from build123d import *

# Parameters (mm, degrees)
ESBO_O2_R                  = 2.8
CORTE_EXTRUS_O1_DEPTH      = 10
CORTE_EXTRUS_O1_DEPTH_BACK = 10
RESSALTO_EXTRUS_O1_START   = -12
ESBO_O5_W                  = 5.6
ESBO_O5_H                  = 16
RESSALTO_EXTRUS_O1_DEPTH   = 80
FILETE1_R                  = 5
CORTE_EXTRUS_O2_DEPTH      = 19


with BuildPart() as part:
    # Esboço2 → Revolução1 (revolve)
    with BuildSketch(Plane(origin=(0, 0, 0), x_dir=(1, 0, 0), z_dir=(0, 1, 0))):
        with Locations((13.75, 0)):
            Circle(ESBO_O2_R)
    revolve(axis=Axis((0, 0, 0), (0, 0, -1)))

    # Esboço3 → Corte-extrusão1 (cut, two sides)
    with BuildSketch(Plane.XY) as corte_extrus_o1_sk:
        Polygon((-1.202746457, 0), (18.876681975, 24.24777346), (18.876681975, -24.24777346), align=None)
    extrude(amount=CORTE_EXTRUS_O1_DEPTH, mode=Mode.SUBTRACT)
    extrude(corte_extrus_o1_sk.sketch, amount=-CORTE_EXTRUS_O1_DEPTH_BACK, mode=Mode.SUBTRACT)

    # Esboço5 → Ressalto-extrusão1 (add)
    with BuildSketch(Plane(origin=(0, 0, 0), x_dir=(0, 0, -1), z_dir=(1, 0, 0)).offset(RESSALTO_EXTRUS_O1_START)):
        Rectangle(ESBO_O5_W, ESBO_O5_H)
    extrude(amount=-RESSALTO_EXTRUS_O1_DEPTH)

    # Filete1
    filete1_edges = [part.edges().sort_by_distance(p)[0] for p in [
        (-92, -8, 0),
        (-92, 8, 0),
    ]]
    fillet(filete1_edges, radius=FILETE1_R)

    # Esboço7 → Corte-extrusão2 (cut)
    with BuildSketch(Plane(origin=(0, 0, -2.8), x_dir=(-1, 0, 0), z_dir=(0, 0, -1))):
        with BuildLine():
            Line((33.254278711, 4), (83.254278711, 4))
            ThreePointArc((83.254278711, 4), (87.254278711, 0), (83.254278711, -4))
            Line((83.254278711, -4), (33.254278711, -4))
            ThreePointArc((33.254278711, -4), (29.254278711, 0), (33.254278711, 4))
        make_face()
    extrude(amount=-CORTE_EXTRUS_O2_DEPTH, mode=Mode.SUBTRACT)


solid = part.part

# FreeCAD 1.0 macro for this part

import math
import FreeCAD as App
import Part
import Sketcher


def edges_at(feature, points):
    """Names of the edges that pass closest to the given points."""
    edges = feature.Shape.Edges
    near = lambda p: min(range(len(edges)), key=lambda i: edges[i].distToShape(Part.Vertex(*p))[0])
    return sorted({f"Edge{near(p) + 1}" for p in points})


def add_polygon(sketch, points):
    """Adds a closed chain of lines whose ends are joined by coincident constraints."""
    first, n = sketch.GeometryCount, len(points)
    for a, b in zip(points, points[1:] + points[:1]):
        sketch.addGeometry(Part.LineSegment(App.Vector(*a, 0), App.Vector(*b, 0)), False)
    for i in range(n):
        sketch.addConstraint(Sketcher.Constraint("Coincident", first + i, 2, first + (i + 1) % n, 1))

doc = App.newDocument("Part")
params = doc.addObject("Spreadsheet::Sheet", "Params")
for row, (alias, value) in enumerate([
    ("sketch1_diameter", "5.6 mm"),
    ("revolution_angle", "360 deg"),
    ("sketch3_width", "16 mm"),
    ("sketch3_height", "5.6 mm"),
    ("pad1_length", "80 mm"),
    ("fillet_radius", "5 mm"),
    ("sketch4_radius", "4 mm"),
    ("sketch4_width", "50 mm"),
    ("pocket2_length", "19 mm"),
], start=1):
    params.set(f"A{row}", alias)
    params.set(f"B{row}", "=" + value)
    params.setAlias(f"B{row}", alias)

body = doc.addObject("PartDesign::Body", "Body")

sketch1 = body.newObject("Sketcher::SketchObject", "Sketch")
sketch1.AttachmentSupport = (doc.getObject("XZ_Plane"), [""])
sketch1.MapMode = "FlatFace"
sketch1.addGeometry(Part.Circle(App.Vector(13.8, 0, 0), App.Vector(0, 0, 1), 2.8), False)
sketch1.addConstraint([
    Sketcher.Constraint("PointOnObject", 0, 3, -1),
    Sketcher.Constraint("Diameter", 0, 5.6),
    Sketcher.Constraint("DistanceX", -1, 1, 0, 3, 13.75),
])
sketch1.setExpression("Constraints[1]", "Params.sketch1_diameter")
revolution = body.newObject("PartDesign::Revolution", "Revolution")
revolution.Profile = sketch1
revolution.ReferenceAxis = (sketch1, ["V_Axis"])
revolution.setExpression("Angle", "Params.revolution_angle")

sketch2 = body.newObject("Sketcher::SketchObject", "Sketch001")
sketch2.AttachmentSupport = (doc.getObject("XY_Plane"), [""])
sketch2.MapMode = "FlatFace"
add_polygon(sketch2, [(19, 24), (-1, 0), (19, -24)])
sketch2.addConstraint([
    Sketcher.Constraint("Vertical", 2),
    Sketcher.Constraint("PointOnObject", 0, 2, -1),
    Sketcher.Constraint("Equal", 0, 1),
    Sketcher.Constraint("DistanceY", 2, 1, 2, 2, 48.495547),
    Sketcher.Constraint("DistanceX", -1, 1, 1, 2, 18.876682),
    Sketcher.Constraint("DistanceX", 0, 2, 1, 2, 20.079428),
])
pocket1 = body.newObject("PartDesign::Pocket", "Pocket")
pocket1.Profile = sketch2
pocket1.Type = "ThroughAll"
pocket1.Midplane = True

sketch3 = body.newObject("Sketcher::SketchObject", "Sketch002")
sketch3.AttachmentSupport = (doc.getObject("YZ_Plane"), [""])
sketch3.MapMode = "FlatFace"
sketch3.AttachmentOffset = App.Placement(App.Vector(0, 0, -12), App.Rotation())
add_polygon(sketch3, [(8, 3), (-8, 3), (-8, -3), (8, -3)])
sketch3.addConstraint([
    Sketcher.Constraint("Horizontal", 0),
    Sketcher.Constraint("Vertical", 1),
    Sketcher.Constraint("Horizontal", 2),
    Sketcher.Constraint("Vertical", 3),
    Sketcher.Constraint("Symmetric", 0, 2, 2, 2, -1, 1),
    Sketcher.Constraint("DistanceX", 0, 2, 0, 1, 16.0),
    Sketcher.Constraint("DistanceY", 1, 2, 1, 1, 5.6),
])
sketch3.setExpression("Constraints[9]", "Params.sketch3_width")
sketch3.setExpression("Constraints[10]", "Params.sketch3_height")
pad1 = body.newObject("PartDesign::Pad", "Pad")
pad1.Profile = sketch3
pad1.setExpression("Length", "Params.pad1_length")
pad1.Reversed = True
doc.recompute()

fillet = body.newObject("PartDesign::Fillet", "Fillet")
fillet.Base = (pad1, edges_at(pad1, [(-92, -8, 0), (-92, 8, 0)]))
fillet.setExpression("Radius", "Params.fillet_radius")

sketch4 = body.newObject("Sketcher::SketchObject", "Sketch003")
sketch4.AttachmentSupport = (doc.getObject("XY_Plane"), [""])
sketch4.MapMode = "FlatFace"
sketch4.AttachmentOffset = App.Placement(App.Vector(0, 0, -2.8), App.Rotation())
sketch4.addGeometry([
    Part.LineSegment(App.Vector(-83.3, 4, 0), App.Vector(-33.3, 4, 0)),
    Part.ArcOfCircle(Part.Circle(App.Vector(-33.3, 0, 0), App.Vector(0, 0, 1), 4), math.radians(-90), math.radians(90)),
    Part.LineSegment(App.Vector(-33.3, -4, 0), App.Vector(-83.3, -4, 0)),
    Part.ArcOfCircle(Part.Circle(App.Vector(-83.3, 0, 0), App.Vector(0, 0, 1), 4), math.radians(90), math.radians(270)),
], False)
sketch4.addConstraint([
    Sketcher.Constraint("Tangent", 0, 2, 1, 2),
    Sketcher.Constraint("Tangent", 1, 1, 2, 1),
    Sketcher.Constraint("Tangent", 2, 2, 3, 2),
    Sketcher.Constraint("Tangent", 3, 1, 0, 1),
    Sketcher.Constraint("Horizontal", 0),
    Sketcher.Constraint("Horizontal", 2),
    Sketcher.Constraint("PointOnObject", 1, 3, -1),
    Sketcher.Constraint("Radius", 1, 4.0),
    Sketcher.Constraint("DistanceX", 0, 1, 0, 2, 50.0),
    Sketcher.Constraint("DistanceX", 1, 3, -1, 1, 33.254279),
])
sketch4.setExpression("Constraints[7]", "Params.sketch4_radius")
sketch4.setExpression("Constraints[8]", "Params.sketch4_width")
pocket2 = body.newObject("PartDesign::Pocket", "Pocket001")
pocket2.Profile = sketch4
pocket2.setExpression("Length", "Params.pocket2_length")
pocket2.Reversed = True

doc.recompute()
